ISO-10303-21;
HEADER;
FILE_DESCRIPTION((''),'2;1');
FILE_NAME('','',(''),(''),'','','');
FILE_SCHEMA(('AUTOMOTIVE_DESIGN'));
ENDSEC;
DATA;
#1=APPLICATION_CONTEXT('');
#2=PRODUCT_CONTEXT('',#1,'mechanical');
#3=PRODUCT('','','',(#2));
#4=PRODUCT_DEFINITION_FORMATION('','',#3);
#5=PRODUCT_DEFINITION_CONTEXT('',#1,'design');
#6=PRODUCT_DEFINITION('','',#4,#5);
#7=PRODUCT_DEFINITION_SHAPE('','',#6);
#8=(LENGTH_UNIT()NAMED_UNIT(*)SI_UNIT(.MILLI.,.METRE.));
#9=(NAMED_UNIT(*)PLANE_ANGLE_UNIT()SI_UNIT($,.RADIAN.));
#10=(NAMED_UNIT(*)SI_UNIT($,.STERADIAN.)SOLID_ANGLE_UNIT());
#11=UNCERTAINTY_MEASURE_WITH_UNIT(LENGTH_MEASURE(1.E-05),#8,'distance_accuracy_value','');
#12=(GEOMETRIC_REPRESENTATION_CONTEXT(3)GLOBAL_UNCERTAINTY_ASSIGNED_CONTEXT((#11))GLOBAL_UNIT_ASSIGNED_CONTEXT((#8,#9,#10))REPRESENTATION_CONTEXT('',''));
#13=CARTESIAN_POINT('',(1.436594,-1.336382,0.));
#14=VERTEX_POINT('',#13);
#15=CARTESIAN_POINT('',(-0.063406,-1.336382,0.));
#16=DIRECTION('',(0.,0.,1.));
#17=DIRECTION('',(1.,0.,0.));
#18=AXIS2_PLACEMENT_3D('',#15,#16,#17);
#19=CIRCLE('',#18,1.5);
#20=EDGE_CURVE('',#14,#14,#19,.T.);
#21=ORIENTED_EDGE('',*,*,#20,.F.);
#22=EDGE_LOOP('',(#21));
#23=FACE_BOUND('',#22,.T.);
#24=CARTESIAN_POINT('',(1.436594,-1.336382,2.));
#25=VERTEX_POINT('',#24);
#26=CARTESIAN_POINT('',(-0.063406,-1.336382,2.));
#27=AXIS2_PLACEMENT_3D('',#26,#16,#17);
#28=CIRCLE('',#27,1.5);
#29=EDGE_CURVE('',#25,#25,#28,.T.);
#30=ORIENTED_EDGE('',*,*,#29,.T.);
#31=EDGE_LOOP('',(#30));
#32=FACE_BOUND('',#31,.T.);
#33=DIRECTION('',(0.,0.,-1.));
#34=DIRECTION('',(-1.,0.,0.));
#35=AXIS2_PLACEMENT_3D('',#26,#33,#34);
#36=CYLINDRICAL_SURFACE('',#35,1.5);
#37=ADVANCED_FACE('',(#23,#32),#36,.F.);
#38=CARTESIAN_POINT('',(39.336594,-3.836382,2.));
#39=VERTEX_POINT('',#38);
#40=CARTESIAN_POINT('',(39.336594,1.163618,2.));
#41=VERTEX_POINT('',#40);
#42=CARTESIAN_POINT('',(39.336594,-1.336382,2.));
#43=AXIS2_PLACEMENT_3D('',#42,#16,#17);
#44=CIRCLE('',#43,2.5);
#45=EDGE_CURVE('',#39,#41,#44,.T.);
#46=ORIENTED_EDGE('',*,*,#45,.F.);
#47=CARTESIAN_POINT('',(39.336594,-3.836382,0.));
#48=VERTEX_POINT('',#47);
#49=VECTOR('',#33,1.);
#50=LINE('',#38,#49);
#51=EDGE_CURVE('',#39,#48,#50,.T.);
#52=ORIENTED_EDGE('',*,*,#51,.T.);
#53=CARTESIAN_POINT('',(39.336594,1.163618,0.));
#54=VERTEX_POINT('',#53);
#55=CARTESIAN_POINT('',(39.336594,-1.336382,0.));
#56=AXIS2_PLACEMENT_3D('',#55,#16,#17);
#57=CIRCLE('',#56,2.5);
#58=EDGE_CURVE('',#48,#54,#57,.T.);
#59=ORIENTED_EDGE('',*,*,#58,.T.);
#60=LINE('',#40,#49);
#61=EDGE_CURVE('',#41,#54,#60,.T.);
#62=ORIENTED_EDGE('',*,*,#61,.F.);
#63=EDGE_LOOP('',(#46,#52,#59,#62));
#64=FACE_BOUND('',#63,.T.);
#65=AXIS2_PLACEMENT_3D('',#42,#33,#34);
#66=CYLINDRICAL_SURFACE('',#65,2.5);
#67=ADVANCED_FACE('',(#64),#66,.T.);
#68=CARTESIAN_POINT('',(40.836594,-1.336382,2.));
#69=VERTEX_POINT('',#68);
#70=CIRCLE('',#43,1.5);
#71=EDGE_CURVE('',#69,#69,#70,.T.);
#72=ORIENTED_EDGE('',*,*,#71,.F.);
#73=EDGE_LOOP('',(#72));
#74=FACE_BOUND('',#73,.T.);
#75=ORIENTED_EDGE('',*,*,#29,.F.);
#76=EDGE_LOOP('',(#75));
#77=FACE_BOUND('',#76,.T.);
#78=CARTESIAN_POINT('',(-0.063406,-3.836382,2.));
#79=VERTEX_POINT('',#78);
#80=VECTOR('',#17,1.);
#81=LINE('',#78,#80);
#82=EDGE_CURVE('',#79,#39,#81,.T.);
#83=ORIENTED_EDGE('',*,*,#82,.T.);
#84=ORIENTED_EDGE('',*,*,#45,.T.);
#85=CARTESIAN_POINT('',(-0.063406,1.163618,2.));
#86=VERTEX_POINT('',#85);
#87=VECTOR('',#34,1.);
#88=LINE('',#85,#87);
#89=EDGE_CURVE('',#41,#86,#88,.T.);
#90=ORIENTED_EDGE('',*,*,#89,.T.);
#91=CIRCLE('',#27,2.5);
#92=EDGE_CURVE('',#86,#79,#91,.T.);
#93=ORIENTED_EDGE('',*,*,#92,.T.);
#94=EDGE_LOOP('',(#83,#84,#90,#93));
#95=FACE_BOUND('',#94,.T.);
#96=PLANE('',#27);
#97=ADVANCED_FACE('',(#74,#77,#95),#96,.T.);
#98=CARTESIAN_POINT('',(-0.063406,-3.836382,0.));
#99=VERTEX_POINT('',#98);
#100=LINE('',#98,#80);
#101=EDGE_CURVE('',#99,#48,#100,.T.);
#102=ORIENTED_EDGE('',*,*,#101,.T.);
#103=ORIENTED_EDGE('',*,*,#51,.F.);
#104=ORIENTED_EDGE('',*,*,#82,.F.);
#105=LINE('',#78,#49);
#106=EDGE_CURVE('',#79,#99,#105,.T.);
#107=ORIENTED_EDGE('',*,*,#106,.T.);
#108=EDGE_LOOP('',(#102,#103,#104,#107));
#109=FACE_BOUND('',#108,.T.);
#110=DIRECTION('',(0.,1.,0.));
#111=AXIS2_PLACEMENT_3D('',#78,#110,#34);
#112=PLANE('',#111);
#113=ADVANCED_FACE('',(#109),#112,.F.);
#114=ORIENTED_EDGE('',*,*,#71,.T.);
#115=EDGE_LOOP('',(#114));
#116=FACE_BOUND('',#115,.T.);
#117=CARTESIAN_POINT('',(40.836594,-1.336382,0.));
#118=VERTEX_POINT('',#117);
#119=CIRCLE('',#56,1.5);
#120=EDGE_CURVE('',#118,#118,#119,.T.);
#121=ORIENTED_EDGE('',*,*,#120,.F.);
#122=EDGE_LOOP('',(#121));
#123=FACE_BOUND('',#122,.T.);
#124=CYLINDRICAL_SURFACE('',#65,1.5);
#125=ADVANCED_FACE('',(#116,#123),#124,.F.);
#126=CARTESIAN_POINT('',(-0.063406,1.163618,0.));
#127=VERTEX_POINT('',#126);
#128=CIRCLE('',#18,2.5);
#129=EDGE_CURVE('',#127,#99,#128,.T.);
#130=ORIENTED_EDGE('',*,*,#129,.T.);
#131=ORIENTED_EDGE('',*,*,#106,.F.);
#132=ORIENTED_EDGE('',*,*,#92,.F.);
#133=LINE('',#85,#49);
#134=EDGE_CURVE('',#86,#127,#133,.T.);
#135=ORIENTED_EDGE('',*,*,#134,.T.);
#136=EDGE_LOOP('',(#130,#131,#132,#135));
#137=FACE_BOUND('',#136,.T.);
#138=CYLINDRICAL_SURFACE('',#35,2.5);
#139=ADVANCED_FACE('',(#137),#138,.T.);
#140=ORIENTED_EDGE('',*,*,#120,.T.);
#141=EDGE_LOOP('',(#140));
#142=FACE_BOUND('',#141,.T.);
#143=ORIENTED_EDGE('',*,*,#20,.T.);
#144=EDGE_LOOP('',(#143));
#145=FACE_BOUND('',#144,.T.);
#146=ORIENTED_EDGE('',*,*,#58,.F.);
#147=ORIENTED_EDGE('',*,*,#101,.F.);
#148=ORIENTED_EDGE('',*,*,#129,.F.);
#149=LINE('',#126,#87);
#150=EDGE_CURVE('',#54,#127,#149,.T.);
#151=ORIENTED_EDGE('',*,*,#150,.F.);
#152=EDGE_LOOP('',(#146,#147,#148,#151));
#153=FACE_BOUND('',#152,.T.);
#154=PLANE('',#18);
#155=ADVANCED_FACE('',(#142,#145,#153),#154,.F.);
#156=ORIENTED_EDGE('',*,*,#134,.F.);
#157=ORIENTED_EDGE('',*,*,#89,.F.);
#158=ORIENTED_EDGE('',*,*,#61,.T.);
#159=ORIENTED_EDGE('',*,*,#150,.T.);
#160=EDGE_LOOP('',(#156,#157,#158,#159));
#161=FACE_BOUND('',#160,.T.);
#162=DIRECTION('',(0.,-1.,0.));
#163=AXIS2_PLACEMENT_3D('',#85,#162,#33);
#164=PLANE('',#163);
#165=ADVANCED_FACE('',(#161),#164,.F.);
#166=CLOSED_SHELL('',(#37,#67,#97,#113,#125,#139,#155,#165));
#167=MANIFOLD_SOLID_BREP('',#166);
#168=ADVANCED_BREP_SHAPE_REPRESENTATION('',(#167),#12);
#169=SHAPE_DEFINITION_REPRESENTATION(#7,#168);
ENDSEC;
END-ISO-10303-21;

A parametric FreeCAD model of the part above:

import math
import FreeCAD as App
import Part
import Sketcher
Q = App.Units.Quantity

doc = App.newDocument("Part")
body = doc.addObject("PartDesign::Body", "Body")

# Sketch on XY plane
sketch1 = body.newObject("Sketcher::SketchObject", "Sketch")
sketch1.AttachmentSupport = (doc.getObject("XY_Plane"), [""])
sketch1.MapMode = "FlatFace"
sketch1.addGeometry(Part.LineSegment(App.Vector(39.3, 1.2, 0), App.Vector(-0.1, 1.2, 0)), False)
sketch1.addGeometry(Part.ArcOfCircle(Part.Circle(App.Vector(-0.1, -1.3, 0), App.Vector(0, 0, 1), 2.5), math.radians(90), math.radians(270)), False)
sketch1.addGeometry(Part.LineSegment(App.Vector(-0.1, -3.8, 0), App.Vector(39.3, -3.8, 0)), False)
sketch1.addGeometry(Part.ArcOfCircle(Part.Circle(App.Vector(39.3, -1.3, 0), App.Vector(0, 0, 1), 2.5), math.radians(-90), math.radians(90)), False)
sketch1.addGeometry(Part.Circle(App.Vector(39.3, -1.3, 0), App.Vector(0, 0, 1), 1.5), False)
sketch1.addGeometry(Part.Circle(App.Vector(-0.1, -1.3, 0), App.Vector(0, 0, 1), 1.5), False)
sketch1.addConstraint(Sketcher.Constraint("Tangent", 0, 2, 1, 1))
sketch1.addConstraint(Sketcher.Constraint("Tangent", 1, 2, 2, 1))
sketch1.addConstraint(Sketcher.Constraint("Tangent", 2, 2, 3, 1))
sketch1.addConstraint(Sketcher.Constraint("Tangent", 3, 2, 0, 1))
sketch1.addConstraint(Sketcher.Constraint("Horizontal", 0))
sketch1.addConstraint(Sketcher.Constraint("Horizontal", 2))
sketch1.addConstraint(Sketcher.Constraint("Coincident", 4, 3, 3, 3))
sketch1.addConstraint(Sketcher.Constraint("Coincident", 5, 3, 1, 3))
sketch1.addConstraint(Sketcher.Constraint("Equal", 4, 5))
sketch1.addConstraint(Sketcher.Constraint("Diameter", 4, Q("3 mm")))
sketch1.addConstraint(Sketcher.Constraint("Radius", 1, Q("2.5 mm")))
sketch1.addConstraint(Sketcher.Constraint("DistanceX", 0, 2, 0, 1, Q("39.4 mm")))
sketch1.addConstraint(Sketcher.Constraint("DistanceY", 1, 3, -1, 1, Q("1.336382 mm")))
sketch1.addConstraint(Sketcher.Constraint("DistanceX", 1, 3, -1, 1, Q("0.063406 mm")))
pad1 = body.newObject("PartDesign::Pad", "Pad")
pad1.Profile = sketch1
pad1.Length = 2

doc.recompute()
